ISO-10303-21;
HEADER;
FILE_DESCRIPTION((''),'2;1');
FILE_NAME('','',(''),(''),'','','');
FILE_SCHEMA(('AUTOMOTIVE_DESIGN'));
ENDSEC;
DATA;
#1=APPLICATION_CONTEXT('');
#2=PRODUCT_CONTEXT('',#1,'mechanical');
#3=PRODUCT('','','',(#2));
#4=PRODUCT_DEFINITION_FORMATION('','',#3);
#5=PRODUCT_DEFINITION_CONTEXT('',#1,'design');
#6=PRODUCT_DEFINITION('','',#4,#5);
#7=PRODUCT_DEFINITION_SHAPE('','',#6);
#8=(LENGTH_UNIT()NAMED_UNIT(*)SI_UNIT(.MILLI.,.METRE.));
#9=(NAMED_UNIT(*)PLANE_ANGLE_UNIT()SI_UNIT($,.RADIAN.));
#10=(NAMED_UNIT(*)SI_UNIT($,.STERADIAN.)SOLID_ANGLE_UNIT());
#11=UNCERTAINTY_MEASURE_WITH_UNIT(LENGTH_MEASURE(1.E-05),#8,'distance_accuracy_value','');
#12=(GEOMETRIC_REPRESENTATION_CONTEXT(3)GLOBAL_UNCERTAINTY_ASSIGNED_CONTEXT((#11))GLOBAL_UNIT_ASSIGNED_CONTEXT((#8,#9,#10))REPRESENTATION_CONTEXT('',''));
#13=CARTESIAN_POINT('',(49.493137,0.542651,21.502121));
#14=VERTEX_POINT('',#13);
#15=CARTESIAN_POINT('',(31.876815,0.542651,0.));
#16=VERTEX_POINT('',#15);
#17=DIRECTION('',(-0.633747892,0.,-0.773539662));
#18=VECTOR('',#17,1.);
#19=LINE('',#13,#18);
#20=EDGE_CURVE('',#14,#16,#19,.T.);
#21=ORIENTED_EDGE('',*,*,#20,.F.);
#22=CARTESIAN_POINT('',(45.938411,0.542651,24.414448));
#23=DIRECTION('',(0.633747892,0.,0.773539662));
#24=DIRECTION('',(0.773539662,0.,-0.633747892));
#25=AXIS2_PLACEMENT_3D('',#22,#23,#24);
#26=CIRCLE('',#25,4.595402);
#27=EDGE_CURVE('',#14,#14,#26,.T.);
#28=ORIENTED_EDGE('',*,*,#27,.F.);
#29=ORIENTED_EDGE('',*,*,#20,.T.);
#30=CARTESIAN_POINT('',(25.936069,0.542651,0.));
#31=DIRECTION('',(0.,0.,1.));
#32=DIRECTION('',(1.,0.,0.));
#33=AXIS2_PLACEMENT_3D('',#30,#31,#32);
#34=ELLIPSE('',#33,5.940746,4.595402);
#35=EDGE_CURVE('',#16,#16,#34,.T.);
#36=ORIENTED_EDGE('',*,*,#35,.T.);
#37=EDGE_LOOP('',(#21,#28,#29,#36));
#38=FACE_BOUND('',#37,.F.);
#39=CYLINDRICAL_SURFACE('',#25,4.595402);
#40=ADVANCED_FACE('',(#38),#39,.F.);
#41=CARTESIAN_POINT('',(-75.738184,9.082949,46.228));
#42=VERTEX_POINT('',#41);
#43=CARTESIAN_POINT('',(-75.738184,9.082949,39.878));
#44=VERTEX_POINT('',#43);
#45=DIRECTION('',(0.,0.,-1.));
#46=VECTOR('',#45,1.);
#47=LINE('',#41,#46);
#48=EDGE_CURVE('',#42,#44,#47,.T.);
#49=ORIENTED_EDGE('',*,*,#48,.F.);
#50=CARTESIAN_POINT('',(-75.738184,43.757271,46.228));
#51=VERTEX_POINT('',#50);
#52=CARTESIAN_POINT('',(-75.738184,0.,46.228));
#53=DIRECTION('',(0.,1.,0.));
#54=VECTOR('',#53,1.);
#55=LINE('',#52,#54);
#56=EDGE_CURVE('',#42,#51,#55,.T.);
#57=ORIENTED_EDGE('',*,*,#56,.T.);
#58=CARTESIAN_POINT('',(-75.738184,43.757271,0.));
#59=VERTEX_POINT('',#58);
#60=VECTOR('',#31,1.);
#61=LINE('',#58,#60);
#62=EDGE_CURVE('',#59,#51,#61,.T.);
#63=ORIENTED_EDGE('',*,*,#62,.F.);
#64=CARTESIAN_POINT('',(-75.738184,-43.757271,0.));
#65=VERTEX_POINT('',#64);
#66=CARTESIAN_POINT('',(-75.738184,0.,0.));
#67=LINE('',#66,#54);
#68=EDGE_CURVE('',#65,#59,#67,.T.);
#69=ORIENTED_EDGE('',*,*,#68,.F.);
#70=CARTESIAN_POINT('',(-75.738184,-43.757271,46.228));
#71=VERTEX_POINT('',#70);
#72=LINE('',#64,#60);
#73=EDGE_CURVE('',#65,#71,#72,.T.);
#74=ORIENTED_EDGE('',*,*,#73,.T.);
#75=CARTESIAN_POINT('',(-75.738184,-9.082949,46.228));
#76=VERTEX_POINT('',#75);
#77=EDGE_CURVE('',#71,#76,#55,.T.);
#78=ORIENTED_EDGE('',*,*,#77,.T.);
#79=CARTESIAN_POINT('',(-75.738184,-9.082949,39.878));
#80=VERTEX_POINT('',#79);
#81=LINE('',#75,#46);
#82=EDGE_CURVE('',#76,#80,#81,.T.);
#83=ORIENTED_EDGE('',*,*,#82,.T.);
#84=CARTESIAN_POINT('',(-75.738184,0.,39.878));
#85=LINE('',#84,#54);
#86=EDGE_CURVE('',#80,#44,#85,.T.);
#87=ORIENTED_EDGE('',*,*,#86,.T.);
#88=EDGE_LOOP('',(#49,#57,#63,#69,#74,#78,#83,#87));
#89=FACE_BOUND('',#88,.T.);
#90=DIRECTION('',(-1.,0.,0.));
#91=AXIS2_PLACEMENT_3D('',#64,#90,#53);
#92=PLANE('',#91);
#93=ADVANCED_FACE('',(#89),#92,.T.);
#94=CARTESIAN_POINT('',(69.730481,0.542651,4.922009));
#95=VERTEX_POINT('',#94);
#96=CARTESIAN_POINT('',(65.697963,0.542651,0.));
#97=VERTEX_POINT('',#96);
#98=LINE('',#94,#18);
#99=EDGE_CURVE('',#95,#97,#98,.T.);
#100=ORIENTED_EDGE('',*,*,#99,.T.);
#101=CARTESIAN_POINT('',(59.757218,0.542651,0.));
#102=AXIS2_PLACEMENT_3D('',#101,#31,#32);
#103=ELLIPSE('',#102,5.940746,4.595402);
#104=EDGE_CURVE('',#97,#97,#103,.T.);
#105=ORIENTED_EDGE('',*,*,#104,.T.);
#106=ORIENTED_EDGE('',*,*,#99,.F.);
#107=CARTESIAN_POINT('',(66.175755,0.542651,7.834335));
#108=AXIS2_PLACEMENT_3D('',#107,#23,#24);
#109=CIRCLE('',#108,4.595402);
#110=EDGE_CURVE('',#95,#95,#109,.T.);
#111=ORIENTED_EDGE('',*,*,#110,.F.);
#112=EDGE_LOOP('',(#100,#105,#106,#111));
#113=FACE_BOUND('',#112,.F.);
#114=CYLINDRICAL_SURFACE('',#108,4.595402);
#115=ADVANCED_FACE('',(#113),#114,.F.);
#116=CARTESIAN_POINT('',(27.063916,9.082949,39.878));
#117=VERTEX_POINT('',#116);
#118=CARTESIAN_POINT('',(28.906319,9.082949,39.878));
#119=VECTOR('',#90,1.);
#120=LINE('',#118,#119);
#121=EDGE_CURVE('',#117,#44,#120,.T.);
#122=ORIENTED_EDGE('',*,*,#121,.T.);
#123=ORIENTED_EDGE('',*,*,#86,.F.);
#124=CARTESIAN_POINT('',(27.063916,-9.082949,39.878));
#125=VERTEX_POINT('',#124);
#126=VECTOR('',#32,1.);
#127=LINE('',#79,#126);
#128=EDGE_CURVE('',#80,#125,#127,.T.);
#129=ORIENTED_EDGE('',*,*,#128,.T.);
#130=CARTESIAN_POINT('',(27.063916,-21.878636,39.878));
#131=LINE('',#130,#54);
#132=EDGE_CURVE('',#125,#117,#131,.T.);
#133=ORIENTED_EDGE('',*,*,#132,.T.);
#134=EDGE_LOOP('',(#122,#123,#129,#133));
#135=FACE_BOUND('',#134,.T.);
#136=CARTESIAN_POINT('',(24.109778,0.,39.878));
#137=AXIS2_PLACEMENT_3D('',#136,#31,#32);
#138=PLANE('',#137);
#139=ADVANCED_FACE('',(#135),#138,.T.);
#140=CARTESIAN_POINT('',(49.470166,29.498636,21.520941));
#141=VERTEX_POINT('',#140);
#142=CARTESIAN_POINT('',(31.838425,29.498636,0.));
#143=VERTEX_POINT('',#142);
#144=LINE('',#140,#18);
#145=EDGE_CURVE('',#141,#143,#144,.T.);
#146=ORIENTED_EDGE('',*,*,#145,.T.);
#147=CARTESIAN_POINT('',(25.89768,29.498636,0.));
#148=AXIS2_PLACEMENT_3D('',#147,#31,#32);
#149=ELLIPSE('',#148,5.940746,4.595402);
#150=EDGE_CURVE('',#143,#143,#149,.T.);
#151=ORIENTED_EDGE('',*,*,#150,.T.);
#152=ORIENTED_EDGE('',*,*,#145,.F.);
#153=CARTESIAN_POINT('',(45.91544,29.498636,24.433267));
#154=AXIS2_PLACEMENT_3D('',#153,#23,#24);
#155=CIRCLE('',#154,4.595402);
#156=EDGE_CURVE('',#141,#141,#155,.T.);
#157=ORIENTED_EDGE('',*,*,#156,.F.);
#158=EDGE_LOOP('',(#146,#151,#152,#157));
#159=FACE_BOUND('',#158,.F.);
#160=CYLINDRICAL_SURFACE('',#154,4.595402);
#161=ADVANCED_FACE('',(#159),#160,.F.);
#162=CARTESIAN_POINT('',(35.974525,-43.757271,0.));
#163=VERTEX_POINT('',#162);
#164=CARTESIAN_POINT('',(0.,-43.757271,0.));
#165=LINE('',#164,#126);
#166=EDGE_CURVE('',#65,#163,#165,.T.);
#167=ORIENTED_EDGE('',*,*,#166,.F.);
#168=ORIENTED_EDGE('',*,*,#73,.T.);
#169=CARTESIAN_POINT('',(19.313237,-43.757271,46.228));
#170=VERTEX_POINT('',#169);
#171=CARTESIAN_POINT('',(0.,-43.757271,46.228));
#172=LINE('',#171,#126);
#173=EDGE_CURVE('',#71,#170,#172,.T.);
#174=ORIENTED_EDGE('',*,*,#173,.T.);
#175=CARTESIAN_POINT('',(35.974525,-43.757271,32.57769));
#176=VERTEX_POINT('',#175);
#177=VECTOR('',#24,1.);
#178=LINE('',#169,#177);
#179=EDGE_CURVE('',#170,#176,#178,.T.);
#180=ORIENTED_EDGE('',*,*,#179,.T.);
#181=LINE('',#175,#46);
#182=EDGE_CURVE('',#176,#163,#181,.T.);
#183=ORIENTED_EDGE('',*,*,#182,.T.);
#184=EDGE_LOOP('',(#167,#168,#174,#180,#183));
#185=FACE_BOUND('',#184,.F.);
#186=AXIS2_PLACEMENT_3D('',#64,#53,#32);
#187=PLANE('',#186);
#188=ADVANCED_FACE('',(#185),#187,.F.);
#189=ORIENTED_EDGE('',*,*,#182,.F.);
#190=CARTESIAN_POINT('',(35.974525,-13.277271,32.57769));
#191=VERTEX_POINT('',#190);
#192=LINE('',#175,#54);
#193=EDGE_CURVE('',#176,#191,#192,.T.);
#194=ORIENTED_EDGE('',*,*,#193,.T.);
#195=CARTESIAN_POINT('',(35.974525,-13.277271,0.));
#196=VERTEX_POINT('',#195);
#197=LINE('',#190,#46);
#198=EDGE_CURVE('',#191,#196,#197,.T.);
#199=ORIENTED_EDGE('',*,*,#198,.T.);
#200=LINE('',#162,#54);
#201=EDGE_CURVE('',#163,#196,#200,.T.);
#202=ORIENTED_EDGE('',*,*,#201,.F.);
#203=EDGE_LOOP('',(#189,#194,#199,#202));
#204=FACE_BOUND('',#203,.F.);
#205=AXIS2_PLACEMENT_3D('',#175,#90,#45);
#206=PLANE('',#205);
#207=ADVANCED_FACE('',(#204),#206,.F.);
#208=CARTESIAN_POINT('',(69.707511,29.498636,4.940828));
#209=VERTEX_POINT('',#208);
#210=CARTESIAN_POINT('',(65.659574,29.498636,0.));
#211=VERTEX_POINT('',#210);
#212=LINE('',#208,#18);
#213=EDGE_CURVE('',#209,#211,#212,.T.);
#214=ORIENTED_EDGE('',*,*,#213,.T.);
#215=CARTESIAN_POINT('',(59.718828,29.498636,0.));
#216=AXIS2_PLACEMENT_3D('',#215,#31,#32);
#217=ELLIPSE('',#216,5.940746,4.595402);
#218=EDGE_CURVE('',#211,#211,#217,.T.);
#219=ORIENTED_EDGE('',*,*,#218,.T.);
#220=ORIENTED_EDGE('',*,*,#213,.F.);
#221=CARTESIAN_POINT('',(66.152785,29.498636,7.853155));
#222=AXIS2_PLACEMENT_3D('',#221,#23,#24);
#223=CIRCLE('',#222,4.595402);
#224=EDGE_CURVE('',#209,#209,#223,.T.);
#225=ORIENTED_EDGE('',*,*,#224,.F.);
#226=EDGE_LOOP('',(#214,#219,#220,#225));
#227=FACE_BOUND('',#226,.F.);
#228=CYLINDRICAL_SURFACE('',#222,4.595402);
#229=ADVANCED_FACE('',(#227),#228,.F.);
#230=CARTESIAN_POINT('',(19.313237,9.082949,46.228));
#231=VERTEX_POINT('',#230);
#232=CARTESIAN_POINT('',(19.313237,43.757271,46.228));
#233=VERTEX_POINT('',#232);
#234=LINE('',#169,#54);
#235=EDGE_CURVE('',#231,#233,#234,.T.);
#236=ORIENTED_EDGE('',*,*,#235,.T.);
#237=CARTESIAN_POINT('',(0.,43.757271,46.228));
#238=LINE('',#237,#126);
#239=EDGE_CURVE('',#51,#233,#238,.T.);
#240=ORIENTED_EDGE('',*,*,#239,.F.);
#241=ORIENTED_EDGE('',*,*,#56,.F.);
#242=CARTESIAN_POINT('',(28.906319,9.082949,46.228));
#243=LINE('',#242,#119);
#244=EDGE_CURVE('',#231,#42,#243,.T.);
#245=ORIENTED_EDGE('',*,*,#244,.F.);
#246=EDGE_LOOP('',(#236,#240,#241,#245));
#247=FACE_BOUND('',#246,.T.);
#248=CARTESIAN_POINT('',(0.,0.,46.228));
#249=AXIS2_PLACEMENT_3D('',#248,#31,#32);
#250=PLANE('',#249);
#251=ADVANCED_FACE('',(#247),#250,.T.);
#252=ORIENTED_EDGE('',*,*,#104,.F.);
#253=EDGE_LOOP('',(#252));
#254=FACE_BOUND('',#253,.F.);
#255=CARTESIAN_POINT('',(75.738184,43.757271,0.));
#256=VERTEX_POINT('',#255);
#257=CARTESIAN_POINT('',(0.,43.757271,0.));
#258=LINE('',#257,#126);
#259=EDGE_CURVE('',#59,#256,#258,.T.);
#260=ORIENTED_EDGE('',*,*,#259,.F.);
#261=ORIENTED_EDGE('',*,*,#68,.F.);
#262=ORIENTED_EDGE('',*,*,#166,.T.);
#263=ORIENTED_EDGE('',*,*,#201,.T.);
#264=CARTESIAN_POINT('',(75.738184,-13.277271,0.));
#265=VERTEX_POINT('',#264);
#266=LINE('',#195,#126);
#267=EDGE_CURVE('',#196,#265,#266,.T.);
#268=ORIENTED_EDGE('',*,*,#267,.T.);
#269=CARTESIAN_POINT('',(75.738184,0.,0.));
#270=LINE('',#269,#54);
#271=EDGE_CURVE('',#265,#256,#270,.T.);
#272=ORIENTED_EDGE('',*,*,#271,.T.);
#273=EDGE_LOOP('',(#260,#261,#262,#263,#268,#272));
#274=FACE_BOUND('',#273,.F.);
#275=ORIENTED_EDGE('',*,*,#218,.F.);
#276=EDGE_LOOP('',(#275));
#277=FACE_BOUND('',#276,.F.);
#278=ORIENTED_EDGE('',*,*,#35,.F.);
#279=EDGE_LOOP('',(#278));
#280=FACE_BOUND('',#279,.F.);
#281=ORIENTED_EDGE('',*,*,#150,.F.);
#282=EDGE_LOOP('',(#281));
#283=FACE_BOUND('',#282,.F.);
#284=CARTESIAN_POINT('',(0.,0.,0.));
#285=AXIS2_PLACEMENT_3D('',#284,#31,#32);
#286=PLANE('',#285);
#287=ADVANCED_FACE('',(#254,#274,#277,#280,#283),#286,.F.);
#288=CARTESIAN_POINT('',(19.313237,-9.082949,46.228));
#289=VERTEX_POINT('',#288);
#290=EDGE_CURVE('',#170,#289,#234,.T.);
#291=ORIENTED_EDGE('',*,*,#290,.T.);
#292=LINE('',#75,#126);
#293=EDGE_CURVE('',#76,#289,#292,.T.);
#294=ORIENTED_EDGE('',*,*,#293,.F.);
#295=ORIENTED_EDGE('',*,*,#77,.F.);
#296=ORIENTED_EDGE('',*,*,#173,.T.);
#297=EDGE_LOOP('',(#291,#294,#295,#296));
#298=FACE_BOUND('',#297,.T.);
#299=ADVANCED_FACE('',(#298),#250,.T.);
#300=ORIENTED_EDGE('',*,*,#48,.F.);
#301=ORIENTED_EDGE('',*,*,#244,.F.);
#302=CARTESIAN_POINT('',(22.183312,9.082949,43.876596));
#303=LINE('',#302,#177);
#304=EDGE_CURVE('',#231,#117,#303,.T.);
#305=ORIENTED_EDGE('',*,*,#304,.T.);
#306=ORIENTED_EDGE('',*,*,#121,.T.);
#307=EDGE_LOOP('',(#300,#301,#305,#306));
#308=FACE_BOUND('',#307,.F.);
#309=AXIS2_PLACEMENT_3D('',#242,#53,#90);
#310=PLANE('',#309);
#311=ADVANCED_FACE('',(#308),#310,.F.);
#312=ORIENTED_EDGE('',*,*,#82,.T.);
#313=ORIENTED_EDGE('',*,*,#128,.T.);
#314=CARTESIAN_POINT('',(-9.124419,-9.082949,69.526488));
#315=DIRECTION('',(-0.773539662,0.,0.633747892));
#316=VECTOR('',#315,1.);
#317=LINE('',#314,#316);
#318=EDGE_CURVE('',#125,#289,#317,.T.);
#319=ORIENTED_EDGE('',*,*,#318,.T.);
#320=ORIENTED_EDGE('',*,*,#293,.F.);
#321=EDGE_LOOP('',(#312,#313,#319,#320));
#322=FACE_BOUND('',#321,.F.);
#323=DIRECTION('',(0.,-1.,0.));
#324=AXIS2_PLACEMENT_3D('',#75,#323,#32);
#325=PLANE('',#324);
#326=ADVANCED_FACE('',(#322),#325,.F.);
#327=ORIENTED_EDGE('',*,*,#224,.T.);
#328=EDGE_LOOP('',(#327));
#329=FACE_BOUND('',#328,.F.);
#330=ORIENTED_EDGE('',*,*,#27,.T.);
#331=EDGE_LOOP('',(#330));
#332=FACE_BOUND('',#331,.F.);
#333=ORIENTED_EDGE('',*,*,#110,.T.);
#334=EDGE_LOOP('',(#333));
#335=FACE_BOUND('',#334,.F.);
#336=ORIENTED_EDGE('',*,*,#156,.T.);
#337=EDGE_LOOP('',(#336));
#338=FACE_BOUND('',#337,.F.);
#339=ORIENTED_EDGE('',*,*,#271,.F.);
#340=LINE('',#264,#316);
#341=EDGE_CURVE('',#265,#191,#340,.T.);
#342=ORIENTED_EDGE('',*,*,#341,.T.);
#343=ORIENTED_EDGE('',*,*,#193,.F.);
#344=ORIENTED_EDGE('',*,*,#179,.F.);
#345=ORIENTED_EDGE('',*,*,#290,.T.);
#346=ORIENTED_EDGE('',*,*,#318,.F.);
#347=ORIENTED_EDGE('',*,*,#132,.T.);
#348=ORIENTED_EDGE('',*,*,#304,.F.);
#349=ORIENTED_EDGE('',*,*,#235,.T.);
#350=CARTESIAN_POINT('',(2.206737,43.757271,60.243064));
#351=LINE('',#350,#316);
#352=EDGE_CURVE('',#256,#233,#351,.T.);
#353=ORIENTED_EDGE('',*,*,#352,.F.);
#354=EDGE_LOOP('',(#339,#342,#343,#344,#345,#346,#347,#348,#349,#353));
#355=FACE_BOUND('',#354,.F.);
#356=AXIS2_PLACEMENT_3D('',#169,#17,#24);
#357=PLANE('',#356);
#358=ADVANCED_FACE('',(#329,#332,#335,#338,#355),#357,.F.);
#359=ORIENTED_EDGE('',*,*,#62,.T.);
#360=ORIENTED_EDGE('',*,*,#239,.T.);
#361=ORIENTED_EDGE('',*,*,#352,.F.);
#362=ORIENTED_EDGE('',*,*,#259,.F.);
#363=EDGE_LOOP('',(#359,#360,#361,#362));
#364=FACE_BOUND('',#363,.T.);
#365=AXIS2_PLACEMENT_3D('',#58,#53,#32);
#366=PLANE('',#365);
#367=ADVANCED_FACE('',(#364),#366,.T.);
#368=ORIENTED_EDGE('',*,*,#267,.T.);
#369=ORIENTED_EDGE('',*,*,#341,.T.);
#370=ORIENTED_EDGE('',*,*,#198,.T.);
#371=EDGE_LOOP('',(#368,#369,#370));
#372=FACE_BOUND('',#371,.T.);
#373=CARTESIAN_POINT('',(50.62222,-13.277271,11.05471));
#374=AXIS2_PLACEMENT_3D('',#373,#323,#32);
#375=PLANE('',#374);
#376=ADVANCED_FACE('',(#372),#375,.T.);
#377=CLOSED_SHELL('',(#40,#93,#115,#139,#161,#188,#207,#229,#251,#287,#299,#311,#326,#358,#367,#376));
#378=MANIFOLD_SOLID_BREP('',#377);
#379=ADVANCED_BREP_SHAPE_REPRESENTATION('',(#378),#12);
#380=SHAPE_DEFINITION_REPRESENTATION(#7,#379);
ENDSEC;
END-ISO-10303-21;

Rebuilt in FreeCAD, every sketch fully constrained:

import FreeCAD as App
import Part
import Sketcher
from FreeCAD import Vector
Q = App.Units.Quantity

doc = App.newDocument("Part")
body = doc.addObject("PartDesign::Body", "Body")

sketch1 = doc.addObject("Sketcher::SketchObject", "Sketch")
body.addObject(sketch1)
sketch1.AttachmentSupport = (doc.XY_Plane, [""])
sketch1.MapMode = "FlatFace"
sketch1.addGeometry(Part.LineSegment(Vector(-76, 44, 0), Vector(-76, -44, 0)), False)
sketch1.addGeometry(Part.LineSegment(Vector(-76, -44, 0), Vector(76, -44, 0)), False)
sketch1.addGeometry(Part.LineSegment(Vector(76, -44, 0), Vector(76, 44, 0)), False)
sketch1.addGeometry(Part.LineSegment(Vector(76, 44, 0), Vector(-76, 44, 0)), False)
sketch1.addConstraint(Sketcher.Constraint("Coincident", 0, 2, 1, 1))
sketch1.addConstraint(Sketcher.Constraint("Coincident", 1, 2, 2, 1))
sketch1.addConstraint(Sketcher.Constraint("Coincident", 2, 2, 3, 1))
sketch1.addConstraint(Sketcher.Constraint("Coincident", 3, 2, 0, 1))
sketch1.addConstraint(Sketcher.Constraint("Vertical", 0))
sketch1.addConstraint(Sketcher.Constraint("Horizontal", 1))
sketch1.addConstraint(Sketcher.Constraint("Vertical", 2))
sketch1.addConstraint(Sketcher.Constraint("Horizontal", 3))
sketch1.addConstraint(Sketcher.Constraint("Symmetric", 0, 2, 2, 2, -1, 1))
sketch1.addConstraint(Sketcher.Constraint("DistanceX", 1, 1, 1, 2, 151.476368))
sketch1.addConstraint(Sketcher.Constraint("DistanceY", 0, 2, 0, 1, 87.514542))
pad1 = doc.addObject("PartDesign::Pad", "Pad")
body.addObject(pad1)
pad1.Profile = sketch1
pad1.Length = Q("1.82 in")

sketch2 = doc.addObject("Sketcher::SketchObject", "Sketch001")
body.addObject(sketch2)
sketch2.AttachmentSupport = (doc.XZ_Plane, [""])
sketch2.MapMode = "FlatFace"
sketch2.AttachmentOffset = App.Placement(Vector(0, 0, 43.757271), App.Rotation())
sketch2.addGeometry(Part.LineSegment(Vector(76, 46, 0), Vector(19, 46, 0)), False)
sketch2.addGeometry(Part.LineSegment(Vector(19, 46, 0), Vector(76, 0, 0)), False)
sketch2.addGeometry(Part.LineSegment(Vector(76, 0, 0), Vector(76, 46, 0)), False)
sketch2.addConstraint(Sketcher.Constraint("Coincident", 0, 2, 1, 1))
sketch2.addConstraint(Sketcher.Constraint("Coincident", 1, 2, 2, 1))
sketch2.addConstraint(Sketcher.Constraint("Coincident", 2, 2, 0, 1))
sketch2.addConstraint(Sketcher.Constraint("Horizontal", 0))
sketch2.addConstraint(Sketcher.Constraint("Vertical", 2))
sketch2.addConstraint(Sketcher.Constraint("PointOnObject", 1, 2, -1))
sketch2.addConstraint(Sketcher.Constraint("DistanceY", 2, 1, 2, 2, Q("1.82 in")))
sketch2.addConstraint(Sketcher.Constraint("DistanceX", 0, 2, 0, 1, 56.424947))
sketch2.addConstraint(Sketcher.Constraint("DistanceX", -1, 1, 0, 2, 19.313237))
pocket1 = doc.addObject("PartDesign::Pocket", "Pocket")
body.addObject(pocket1)
pocket1.Profile = sketch2
pocket1.Length = Q("4.05 in")

sketch3 = doc.addObject("Sketcher::SketchObject", "Sketch002")
body.addObject(sketch3)
sketch3.AttachmentSupport = (doc.XZ_Plane, [""])
sketch3.MapMode = "FlatFace"
sketch3.AttachmentOffset = App.Placement(Vector(0, 0, 43.757271), App.Rotation())
sketch3.addGeometry(Part.LineSegment(Vector(76, 0, 0), Vector(36, 33, 0)), False)
sketch3.addGeometry(Part.LineSegment(Vector(36, 33, 0), Vector(36, 0, 0)), False)
sketch3.addGeometry(Part.LineSegment(Vector(36, 0, 0), Vector(76, 0, 0)), False)
sketch3.addConstraint(Sketcher.Constraint("Coincident", 0, 2, 1, 1))
sketch3.addConstraint(Sketcher.Constraint("Coincident", 1, 2, 2, 1))
sketch3.addConstraint(Sketcher.Constraint("Coincident", 2, 2, 0, 1))
sketch3.addConstraint(Sketcher.Constraint("Vertical", 1))
sketch3.addConstraint(Sketcher.Constraint("Horizontal", 2))
sketch3.addConstraint(Sketcher.Constraint("PointOnObject", 1, 2, -1))
sketch3.addConstraint(Sketcher.Constraint("DistanceX", 2, 1, 2, 2, 39.763659))
sketch3.addConstraint(Sketcher.Constraint("DistanceY", 1, 2, 1, 1, 32.57769))
sketch3.addConstraint(Sketcher.Constraint("DistanceX", -1, 1, 0, 2, 35.974525))
pocket2 = doc.addObject("PartDesign::Pocket", "Pocket001")
body.addObject(pocket2)
pocket2.Profile = sketch3
pocket2.Length = Q("1.2 in")

sketch4 = doc.addObject("Sketcher::SketchObject", "Sketch003")
body.addObject(sketch4)
sketch4.AttachmentSupport = (doc.XY_Plane, [""])
sketch4.MapMode = "FlatFace"
sketch4.AttachmentOffset = App.Placement(Vector(0, 0, 1.82 * 25.4), App.Rotation())
sketch4.addGeometry(Part.LineSegment(Vector(29, -9, 0), Vector(29, 9, 0)), False)
sketch4.addGeometry(Part.LineSegment(Vector(29, 9, 0), Vector(-76, 9, 0)), False)
sketch4.addGeometry(Part.LineSegment(Vector(-76, 9, 0), Vector(-76, -9, 0)), False)
sketch4.addGeometry(Part.LineSegment(Vector(-76, -9, 0), Vector(29, -9, 0)), False)
sketch4.addConstraint(Sketcher.Constraint("Coincident", 0, 2, 1, 1))
sketch4.addConstraint(Sketcher.Constraint("Coincident", 1, 2, 2, 1))
sketch4.addConstraint(Sketcher.Constraint("Coincident", 2, 2, 3, 1))
sketch4.addConstraint(Sketcher.Constraint("Coincident", 3, 2, 0, 1))
sketch4.addConstraint(Sketcher.Constraint("Vertical", 0))
sketch4.addConstraint(Sketcher.Constraint("Horizontal", 1))
sketch4.addConstraint(Sketcher.Constraint("Vertical", 2))
sketch4.addConstraint(Sketcher.Constraint("Horizontal", 3))
sketch4.addConstraint(Sketcher.Constraint("DistanceX", 1, 2, 1, 1, 104.644503))
sketch4.addConstraint(Sketcher.Constraint("DistanceY", 0, 1, 0, 2, 18.165898))
sketch4.addConstraint(Sketcher.Constraint("DistanceX", -1, 1, 0, 2, 28.906319))
sketch4.addConstraint(Sketcher.Constraint("DistanceY", -1, 1, 0, 2, 9.082949))
pocket3 = doc.addObject("PartDesign::Pocket", "Pocket002")
body.addObject(pocket3)
pocket3.Profile = sketch4
pocket3.Length = Q("0.25 in")

sketch5 = doc.addObject("Sketcher::SketchObject", "Sketch004")
body.addObject(sketch5)
sketch5.Placement = App.Placement(Vector(30.419211, 0, 37.129064), App.Rotation(Vector(0.773539662, 0, -0.633747892), Vector(0, 0.999999999, 0), Vector(0.633747892, 0, 0.773539662), "ZXY"))
sketch5.addGeometry(Part.Circle(Vector(20.1, 0.5, 0), Vector(0, 0, 1), 4.6), False)
sketch5.addGeometry(Part.Circle(Vector(20, 29.5, 0), Vector(0, 0, 1), 4.6), False)
sketch5.addGeometry(Part.Circle(Vector(46.2, 29.5, 0), Vector(0, 0, 1), 4.6), False)
sketch5.addGeometry(Part.Circle(Vector(46.2, 0.5, 0), Vector(0, 0, 1), 4.6), False)
sketch5.addConstraint(Sketcher.Constraint("Equal", 0, 1))
sketch5.addConstraint(Sketcher.Constraint("Equal", 1, 2))
sketch5.addConstraint(Sketcher.Constraint("Equal", 2, 3))
sketch5.addConstraint(Sketcher.Constraint("Horizontal", 1, 3, 2, 3))
sketch5.addConstraint(Sketcher.Constraint("Horizontal", 0, 3, 3, 3))
sketch5.addConstraint(Sketcher.Constraint("DistanceX", 1, 3, 2, 3, Q("1.03 in")))
sketch5.addConstraint(Sketcher.Constraint("DistanceX", 0, 3, 3, 3, Q("1.03 in")))
sketch5.addConstraint(Sketcher.Constraint("Diameter", 0, 9.190805))
sketch5.addConstraint(Sketcher.Constraint("DistanceX", -1, 1, 0, 3, 20.062578))
sketch5.addConstraint(Sketcher.Constraint("DistanceY", -1, 1, 0, 3, 0.542651))
sketch5.addConstraint(Sketcher.Constraint("DistanceX", -1, 1, 1, 3, 20.032882))
sketch5.addConstraint(Sketcher.Constraint("DistanceY", -1, 1, 1, 3, 29.498635))
pocket4 = doc.addObject("PartDesign::Pocket", "Pocket003")
body.addObject(pocket4)
pocket4.Profile = sketch5
pocket4.Length = Q("2.06 in")

doc.recompute()
